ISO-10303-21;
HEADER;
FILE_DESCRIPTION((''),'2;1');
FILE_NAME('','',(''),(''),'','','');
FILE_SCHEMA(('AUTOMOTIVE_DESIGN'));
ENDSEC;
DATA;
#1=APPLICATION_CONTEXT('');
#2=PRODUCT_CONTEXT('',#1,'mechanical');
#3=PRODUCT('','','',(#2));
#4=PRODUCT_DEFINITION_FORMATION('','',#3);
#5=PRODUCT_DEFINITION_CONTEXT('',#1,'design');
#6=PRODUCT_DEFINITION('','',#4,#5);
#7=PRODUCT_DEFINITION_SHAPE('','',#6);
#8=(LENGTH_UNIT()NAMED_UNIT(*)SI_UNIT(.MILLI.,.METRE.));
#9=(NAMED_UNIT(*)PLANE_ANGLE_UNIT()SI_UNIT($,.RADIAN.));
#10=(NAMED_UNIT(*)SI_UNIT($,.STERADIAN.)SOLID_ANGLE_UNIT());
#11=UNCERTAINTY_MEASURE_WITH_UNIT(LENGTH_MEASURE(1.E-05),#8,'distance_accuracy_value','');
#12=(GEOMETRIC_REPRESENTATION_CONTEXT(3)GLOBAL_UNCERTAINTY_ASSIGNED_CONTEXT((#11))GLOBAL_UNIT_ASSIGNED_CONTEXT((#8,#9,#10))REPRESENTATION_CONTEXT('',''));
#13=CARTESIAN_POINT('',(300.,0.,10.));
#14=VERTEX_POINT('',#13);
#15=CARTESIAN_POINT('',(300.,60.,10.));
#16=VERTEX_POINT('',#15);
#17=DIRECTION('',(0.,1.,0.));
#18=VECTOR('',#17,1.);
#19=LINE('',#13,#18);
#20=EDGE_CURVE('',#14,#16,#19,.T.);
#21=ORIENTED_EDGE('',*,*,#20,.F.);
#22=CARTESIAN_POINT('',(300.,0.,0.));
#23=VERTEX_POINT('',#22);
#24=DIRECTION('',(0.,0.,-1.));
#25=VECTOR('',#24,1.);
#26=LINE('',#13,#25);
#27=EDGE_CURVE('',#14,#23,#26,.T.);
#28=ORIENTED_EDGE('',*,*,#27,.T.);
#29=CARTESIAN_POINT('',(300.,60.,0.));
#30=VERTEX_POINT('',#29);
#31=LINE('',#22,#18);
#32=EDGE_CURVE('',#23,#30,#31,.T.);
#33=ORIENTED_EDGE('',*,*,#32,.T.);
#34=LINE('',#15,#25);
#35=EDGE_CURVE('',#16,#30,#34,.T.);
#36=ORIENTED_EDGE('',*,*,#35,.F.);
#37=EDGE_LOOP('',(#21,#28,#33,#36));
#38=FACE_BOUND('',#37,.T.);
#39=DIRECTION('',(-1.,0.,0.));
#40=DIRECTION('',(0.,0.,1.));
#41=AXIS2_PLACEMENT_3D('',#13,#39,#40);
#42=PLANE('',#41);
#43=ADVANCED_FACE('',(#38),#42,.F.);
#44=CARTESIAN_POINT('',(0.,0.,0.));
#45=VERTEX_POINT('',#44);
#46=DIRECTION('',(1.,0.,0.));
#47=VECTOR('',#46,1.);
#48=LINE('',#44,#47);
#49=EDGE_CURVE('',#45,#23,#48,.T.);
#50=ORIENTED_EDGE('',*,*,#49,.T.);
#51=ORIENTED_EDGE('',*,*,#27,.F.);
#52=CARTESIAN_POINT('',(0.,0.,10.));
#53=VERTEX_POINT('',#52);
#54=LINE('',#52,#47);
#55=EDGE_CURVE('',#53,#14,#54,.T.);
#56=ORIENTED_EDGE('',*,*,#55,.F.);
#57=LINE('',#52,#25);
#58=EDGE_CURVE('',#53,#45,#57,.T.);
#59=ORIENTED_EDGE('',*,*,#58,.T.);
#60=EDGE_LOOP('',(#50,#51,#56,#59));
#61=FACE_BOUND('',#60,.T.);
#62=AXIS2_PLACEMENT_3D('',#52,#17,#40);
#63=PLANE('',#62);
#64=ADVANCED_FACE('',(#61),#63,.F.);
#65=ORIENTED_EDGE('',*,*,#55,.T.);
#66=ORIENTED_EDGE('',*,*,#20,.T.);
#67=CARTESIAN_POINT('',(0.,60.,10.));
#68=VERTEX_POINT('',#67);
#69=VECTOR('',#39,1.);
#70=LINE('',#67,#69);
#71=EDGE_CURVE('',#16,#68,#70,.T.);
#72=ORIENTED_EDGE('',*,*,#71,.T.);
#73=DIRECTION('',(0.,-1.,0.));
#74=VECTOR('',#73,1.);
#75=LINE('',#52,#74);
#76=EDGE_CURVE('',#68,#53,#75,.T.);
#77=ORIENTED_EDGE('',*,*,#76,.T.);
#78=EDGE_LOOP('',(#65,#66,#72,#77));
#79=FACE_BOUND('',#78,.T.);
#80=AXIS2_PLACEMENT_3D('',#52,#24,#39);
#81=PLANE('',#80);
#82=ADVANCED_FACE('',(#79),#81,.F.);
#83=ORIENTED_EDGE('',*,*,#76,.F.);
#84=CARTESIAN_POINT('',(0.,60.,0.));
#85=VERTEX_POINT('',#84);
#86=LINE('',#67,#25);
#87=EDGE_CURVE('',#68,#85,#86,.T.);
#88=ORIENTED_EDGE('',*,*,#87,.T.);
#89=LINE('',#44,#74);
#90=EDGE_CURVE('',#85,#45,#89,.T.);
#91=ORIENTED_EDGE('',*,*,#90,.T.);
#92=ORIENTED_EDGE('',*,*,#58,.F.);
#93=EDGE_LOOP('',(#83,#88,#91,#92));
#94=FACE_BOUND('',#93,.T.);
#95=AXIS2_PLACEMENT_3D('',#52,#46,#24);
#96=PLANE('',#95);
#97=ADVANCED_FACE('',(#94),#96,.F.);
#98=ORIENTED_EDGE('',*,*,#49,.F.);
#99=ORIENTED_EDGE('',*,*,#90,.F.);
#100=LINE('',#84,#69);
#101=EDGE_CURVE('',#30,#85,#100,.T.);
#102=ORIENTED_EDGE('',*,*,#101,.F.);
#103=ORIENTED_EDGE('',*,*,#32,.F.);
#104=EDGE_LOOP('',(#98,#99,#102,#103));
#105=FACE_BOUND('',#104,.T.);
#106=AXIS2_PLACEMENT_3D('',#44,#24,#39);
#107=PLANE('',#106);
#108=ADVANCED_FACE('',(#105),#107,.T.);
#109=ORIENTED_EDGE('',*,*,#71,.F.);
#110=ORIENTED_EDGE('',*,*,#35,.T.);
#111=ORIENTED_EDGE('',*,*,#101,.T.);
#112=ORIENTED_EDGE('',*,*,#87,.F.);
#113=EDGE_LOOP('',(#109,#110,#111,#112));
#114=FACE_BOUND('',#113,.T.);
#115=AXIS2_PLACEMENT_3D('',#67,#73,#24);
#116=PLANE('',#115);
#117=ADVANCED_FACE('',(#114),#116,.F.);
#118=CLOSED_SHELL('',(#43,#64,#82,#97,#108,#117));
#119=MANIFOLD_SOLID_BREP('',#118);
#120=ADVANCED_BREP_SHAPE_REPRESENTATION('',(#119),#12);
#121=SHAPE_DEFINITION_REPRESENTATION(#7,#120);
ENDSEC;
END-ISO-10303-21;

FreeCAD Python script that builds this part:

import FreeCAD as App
import Part
import Sketcher
Q = App.Units.Quantity


def add_polygon(sketch, points):
    """Adds a closed chain of lines whose ends are joined by coincident constraints."""
    first, n = sketch.GeometryCount, len(points)
    for a, b in zip(points, points[1:] + points[:1]):
        sketch.addGeometry(Part.LineSegment(App.Vector(*a, 0), App.Vector(*b, 0)), False)
    for i in range(n):
        sketch.addConstraint(Sketcher.Constraint("Coincident", first + i, 2, first + (i + 1) % n, 1))

doc = App.newDocument("Part")
body = doc.addObject("PartDesign::Body", "Body")

# Sketch on XY plane
sketch1 = body.newObject("Sketcher::SketchObject", "Sketch")
sketch1.AttachmentSupport = (doc.getObject("XY_Plane"), [""])
sketch1.MapMode = "FlatFace"
add_polygon(sketch1, [(0, 60), (0, 0), (300, 0), (300, 60)])  # lines 0-3
sketch1.addConstraint([
    Sketcher.Constraint("Vertical", 0),
    Sketcher.Constraint("Horizontal", 1),
    Sketcher.Constraint("Vertical", 2),
    Sketcher.Constraint("Horizontal", 3),
    Sketcher.Constraint("Coincident", 0, 2, -1, 1),
    Sketcher.Constraint("DistanceX", 1, 1, 1, 2, Q("300 mm")),
    Sketcher.Constraint("DistanceY", 0, 2, 0, 1, Q("60 mm")),
])
pad1 = body.newObject("PartDesign::Pad", "Pad")
pad1.Profile = sketch1
pad1.Length = 10

doc.recompute()
